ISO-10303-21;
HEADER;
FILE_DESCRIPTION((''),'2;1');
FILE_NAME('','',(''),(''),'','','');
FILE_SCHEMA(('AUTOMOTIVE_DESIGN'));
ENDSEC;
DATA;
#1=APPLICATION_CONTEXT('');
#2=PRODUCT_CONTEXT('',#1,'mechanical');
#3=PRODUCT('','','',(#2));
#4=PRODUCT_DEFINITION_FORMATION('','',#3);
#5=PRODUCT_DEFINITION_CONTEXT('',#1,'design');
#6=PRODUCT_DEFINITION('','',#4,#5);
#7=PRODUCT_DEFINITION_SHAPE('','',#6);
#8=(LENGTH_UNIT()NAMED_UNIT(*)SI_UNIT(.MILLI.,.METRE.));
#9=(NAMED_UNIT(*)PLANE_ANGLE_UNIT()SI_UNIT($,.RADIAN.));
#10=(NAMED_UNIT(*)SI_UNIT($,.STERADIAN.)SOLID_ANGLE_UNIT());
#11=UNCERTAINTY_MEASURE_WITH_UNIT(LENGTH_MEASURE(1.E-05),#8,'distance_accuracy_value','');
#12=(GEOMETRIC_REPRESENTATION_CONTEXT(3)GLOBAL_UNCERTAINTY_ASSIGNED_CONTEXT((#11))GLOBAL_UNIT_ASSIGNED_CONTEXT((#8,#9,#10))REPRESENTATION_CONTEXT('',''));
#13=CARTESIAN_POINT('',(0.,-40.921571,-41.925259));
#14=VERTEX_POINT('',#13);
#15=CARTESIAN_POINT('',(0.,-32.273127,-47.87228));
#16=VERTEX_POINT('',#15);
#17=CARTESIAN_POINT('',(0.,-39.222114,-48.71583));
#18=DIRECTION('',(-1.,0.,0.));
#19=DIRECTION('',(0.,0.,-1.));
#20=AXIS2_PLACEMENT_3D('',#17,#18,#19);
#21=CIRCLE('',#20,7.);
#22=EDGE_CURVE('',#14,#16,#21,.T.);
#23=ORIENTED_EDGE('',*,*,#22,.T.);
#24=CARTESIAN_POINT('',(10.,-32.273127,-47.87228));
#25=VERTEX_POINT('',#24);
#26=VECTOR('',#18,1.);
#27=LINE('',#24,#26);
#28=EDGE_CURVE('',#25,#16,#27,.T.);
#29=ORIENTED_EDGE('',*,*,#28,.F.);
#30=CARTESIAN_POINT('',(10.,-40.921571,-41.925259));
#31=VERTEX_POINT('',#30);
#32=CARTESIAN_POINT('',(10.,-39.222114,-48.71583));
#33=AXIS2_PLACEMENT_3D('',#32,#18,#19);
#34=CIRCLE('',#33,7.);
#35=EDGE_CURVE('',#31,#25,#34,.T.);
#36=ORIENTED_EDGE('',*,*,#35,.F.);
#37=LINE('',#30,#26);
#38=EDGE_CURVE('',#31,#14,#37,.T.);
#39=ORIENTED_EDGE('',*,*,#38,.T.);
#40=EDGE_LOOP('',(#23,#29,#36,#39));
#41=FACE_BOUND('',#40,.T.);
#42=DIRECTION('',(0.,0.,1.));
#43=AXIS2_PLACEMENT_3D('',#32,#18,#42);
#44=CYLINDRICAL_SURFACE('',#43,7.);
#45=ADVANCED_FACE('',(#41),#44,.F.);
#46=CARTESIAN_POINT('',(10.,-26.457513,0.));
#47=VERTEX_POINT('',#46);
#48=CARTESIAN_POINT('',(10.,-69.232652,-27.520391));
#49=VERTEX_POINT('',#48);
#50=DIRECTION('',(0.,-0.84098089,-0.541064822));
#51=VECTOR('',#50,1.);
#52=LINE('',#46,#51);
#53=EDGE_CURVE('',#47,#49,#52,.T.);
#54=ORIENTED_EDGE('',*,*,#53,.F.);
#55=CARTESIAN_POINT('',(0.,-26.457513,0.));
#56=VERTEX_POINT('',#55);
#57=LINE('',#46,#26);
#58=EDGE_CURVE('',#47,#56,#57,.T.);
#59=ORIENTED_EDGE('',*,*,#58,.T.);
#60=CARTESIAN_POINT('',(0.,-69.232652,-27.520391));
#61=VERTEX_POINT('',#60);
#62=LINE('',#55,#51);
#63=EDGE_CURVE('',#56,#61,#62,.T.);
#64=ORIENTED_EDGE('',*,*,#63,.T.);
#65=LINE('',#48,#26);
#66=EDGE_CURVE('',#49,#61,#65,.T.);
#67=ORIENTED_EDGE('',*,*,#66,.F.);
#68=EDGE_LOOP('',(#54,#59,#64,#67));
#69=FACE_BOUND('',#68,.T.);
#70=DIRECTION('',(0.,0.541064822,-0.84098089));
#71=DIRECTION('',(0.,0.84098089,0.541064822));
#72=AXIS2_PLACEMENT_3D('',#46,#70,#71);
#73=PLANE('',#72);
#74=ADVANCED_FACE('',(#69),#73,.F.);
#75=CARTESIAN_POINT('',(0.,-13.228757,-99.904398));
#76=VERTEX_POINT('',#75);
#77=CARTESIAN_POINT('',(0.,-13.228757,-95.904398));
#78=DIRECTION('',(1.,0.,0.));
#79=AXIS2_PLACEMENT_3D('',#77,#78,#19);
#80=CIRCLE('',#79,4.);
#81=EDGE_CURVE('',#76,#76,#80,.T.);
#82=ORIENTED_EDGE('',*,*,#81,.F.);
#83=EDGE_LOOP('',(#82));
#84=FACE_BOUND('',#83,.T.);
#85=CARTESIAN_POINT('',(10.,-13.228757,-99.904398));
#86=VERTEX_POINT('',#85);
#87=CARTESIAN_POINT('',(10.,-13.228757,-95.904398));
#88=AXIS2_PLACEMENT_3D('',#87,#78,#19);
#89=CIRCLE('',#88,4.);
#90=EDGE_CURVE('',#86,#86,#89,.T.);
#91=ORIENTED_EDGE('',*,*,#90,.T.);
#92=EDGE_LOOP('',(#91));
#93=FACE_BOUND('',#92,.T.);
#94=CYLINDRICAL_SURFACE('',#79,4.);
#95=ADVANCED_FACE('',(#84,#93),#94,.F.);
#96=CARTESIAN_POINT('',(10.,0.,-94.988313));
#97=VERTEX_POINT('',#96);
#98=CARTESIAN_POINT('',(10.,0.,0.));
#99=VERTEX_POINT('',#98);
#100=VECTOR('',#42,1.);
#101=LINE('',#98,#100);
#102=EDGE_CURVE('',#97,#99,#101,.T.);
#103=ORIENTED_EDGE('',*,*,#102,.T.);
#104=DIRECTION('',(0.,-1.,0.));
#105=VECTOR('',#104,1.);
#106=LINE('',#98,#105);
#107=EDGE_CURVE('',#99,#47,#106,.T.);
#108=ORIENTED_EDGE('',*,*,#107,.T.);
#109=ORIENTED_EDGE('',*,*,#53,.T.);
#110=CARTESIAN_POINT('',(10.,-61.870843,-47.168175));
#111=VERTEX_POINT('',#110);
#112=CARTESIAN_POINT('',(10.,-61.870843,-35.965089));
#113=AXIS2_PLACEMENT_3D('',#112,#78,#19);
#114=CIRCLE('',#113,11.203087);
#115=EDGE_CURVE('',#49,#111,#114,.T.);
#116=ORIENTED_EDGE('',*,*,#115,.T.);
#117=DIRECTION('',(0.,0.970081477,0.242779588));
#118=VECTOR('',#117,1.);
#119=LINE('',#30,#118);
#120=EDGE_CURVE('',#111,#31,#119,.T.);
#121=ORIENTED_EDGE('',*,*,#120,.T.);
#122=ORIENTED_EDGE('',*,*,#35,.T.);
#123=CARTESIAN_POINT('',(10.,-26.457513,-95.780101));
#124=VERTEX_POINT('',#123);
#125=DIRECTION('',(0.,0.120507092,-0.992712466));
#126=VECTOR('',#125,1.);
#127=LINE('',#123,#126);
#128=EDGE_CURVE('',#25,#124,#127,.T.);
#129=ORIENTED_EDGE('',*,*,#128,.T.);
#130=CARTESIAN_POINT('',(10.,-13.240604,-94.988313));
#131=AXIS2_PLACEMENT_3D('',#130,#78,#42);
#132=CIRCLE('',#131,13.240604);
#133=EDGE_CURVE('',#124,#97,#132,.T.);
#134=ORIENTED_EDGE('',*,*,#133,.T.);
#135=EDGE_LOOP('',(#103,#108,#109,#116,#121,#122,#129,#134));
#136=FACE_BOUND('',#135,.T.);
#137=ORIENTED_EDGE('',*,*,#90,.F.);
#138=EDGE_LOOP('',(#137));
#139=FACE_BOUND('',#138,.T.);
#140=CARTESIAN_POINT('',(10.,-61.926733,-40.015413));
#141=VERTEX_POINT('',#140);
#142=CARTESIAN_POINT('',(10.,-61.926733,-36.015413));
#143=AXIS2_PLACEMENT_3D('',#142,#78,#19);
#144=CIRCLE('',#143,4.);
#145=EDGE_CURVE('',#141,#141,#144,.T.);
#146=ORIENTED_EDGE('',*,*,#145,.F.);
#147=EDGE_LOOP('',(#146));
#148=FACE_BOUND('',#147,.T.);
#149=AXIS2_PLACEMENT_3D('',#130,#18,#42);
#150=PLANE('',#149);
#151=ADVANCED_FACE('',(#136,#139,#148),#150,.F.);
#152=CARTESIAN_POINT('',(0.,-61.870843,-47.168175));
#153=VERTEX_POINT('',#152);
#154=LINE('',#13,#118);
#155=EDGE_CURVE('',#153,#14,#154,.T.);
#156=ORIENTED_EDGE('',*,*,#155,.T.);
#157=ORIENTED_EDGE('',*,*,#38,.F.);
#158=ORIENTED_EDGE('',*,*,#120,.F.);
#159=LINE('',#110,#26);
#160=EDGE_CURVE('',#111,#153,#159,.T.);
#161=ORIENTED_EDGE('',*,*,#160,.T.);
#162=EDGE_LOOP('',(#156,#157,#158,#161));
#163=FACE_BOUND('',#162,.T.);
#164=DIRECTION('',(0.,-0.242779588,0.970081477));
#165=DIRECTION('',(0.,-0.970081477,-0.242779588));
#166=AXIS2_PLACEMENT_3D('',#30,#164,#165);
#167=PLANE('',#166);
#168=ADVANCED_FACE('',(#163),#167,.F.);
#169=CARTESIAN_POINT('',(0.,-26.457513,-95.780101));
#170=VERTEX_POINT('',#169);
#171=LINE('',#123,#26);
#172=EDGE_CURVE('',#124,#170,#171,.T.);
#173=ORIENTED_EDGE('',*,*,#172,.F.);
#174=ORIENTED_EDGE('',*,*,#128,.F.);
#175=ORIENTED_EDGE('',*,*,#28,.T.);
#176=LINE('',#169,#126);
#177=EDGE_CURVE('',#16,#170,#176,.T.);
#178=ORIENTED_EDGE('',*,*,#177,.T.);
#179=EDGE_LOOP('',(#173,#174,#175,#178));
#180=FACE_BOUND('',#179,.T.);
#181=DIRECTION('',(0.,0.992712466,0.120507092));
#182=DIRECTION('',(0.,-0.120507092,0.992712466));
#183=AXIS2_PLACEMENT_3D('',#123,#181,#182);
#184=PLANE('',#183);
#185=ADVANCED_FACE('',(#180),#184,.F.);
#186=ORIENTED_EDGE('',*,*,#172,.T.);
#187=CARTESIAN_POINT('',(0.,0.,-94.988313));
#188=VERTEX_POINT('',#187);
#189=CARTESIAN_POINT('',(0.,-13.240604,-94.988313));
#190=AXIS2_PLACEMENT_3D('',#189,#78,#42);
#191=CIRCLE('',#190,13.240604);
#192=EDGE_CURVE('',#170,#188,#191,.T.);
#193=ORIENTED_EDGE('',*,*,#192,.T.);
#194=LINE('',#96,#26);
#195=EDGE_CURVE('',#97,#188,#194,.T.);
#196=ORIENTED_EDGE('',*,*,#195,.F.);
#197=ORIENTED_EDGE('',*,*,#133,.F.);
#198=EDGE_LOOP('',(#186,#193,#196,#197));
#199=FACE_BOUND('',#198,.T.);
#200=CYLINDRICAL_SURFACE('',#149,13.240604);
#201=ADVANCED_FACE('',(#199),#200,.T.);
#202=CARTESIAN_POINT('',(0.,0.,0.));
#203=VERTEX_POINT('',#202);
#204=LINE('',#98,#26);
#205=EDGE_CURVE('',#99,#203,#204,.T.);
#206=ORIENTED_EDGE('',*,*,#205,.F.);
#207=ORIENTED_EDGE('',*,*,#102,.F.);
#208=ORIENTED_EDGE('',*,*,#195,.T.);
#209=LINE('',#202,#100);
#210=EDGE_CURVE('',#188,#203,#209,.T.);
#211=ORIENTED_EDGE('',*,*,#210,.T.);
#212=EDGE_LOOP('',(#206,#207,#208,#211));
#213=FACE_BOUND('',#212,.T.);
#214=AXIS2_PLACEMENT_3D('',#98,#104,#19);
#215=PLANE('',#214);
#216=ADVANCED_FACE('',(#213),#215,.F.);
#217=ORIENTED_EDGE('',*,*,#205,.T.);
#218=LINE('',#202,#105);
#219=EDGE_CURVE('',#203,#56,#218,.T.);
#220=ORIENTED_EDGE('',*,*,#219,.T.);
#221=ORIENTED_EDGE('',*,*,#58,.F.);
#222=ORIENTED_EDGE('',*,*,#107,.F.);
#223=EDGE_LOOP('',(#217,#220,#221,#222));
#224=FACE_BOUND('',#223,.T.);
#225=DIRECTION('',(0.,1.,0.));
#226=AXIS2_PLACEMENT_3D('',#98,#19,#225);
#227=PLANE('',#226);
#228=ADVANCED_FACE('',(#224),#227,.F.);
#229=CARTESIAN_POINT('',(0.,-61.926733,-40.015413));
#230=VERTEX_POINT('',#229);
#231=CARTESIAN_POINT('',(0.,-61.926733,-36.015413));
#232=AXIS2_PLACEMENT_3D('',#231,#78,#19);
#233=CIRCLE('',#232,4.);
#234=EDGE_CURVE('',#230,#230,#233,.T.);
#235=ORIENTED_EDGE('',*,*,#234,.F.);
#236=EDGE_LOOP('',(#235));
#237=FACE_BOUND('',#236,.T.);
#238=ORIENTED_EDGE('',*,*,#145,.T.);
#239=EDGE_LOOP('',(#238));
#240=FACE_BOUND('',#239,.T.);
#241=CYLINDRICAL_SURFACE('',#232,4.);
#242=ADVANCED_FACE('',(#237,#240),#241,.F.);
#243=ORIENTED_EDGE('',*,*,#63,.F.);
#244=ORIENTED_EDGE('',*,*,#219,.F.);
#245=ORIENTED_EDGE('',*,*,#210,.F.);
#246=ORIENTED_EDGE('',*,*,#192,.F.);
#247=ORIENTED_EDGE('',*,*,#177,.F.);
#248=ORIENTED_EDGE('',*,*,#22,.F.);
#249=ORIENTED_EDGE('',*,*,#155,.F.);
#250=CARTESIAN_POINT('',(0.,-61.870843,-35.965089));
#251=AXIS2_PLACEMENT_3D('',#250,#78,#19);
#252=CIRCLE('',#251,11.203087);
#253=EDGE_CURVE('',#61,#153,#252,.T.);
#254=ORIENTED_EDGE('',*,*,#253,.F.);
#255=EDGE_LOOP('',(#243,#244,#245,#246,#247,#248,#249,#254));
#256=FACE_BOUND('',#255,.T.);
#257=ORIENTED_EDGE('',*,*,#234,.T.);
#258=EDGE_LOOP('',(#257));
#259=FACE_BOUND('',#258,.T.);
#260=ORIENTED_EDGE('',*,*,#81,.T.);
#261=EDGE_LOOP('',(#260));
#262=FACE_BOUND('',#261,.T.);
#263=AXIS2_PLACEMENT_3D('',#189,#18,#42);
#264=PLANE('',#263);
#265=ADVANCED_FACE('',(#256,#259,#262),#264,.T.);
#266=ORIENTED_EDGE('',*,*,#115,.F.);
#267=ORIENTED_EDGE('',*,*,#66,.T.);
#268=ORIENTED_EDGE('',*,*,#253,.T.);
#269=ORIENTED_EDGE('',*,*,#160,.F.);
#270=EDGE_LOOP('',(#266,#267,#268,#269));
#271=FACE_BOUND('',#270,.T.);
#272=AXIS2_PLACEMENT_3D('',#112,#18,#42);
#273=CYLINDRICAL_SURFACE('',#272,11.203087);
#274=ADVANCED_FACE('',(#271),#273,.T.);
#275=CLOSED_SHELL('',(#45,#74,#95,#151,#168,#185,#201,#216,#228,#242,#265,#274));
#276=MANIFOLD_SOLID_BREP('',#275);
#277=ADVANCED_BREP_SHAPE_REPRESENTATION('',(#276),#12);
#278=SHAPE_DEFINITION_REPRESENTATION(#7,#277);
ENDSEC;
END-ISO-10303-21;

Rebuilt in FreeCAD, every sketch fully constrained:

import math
import FreeCAD as App
import Part
import Sketcher
from FreeCAD import Vector

doc = App.newDocument("Part")
body = doc.addObject("PartDesign::Body", "Body")

sketch1 = body.newObject("Sketcher::SketchObject", "Sketch")
sketch1.AttachmentSupport = (doc.getObject("YZ_Plane"), [""])
sketch1.MapMode = "FlatFace"
sketch1.addGeometry(Part.LineSegment(Vector(0, 0, 0), Vector(-26, 0, 0)), False)
sketch1.addGeometry(Part.LineSegment(Vector(-26, 0, 0), Vector(-69, -28, 0)), False)
sketch1.addGeometry(Part.ArcOfCircle(Part.Circle(Vector(-62, -36, 0), Vector(0, 0, 1), 11), math.radians(131), math.radians(270)), False)
sketch1.addGeometry(Part.LineSegment(Vector(-62, -47, 0), Vector(-41, -42, 0)), False)
sketch1.addGeometry(Part.ArcOfCircle(Part.Circle(Vector(-39, -49, 0), Vector(0, 0, 1), 7), math.radians(7), math.radians(104)), False)
sketch1.addGeometry(Part.LineSegment(Vector(-32, -48, 0), Vector(-26, -96, 0)), False)
sketch1.addGeometry(Part.ArcOfCircle(Part.Circle(Vector(-13, -95, 0), Vector(0, 0, 1), 13), math.radians(-177), math.radians(0)), False)
sketch1.addGeometry(Part.LineSegment(Vector(0, -95, 0), Vector(0, 0, 0)), False)
sketch1.addConstraint(Sketcher.Constraint("Coincident", 0, 2, 1, 1))
sketch1.addConstraint(Sketcher.Constraint("Coincident", 1, 2, 2, 1))
sketch1.addConstraint(Sketcher.Constraint("Coincident", 2, 2, 3, 1))
sketch1.addConstraint(Sketcher.Constraint("Tangent", 3, 2, 4, 2))
sketch1.addConstraint(Sketcher.Constraint("Tangent", 4, 1, 5, 1))
sketch1.addConstraint(Sketcher.Constraint("Coincident", 5, 2, 6, 1))
sketch1.addConstraint(Sketcher.Constraint("Tangent", 6, 2, 7, 1))
sketch1.addConstraint(Sketcher.Constraint("Coincident", 7, 2, 0, 1))
sketch1.addConstraint(Sketcher.Constraint("Horizontal", 0))
sketch1.addConstraint(Sketcher.Constraint("Vertical", 7))
sketch1.addConstraint(Sketcher.Constraint("Coincident", 7, 2, -1, 1))
sketch1.addConstraint(Sketcher.Constraint("Vertical", 0, 2, 5, 2))
sketch1.addConstraint(Sketcher.Constraint("Radius", 4, 7.0))
sketch1.addConstraint(Sketcher.Constraint("Radius", 2, 11.203087))
sketch1.addConstraint(Sketcher.Constraint("Radius", 6, 13.240604))
sketch1.addConstraint(Sketcher.Constraint("DistanceY", 5, 2, -1, 1, 95.780101))
sketch1.addConstraint(Sketcher.Constraint("DistanceX", 4, 3, 0, 2, 12.764601))
sketch1.addConstraint(Sketcher.Constraint("Distance", 1, 50.86339))
sketch1.addConstraint(Sketcher.Constraint("DistanceX", 0, 2, 0, 1, 26.457513))
sketch1.addConstraint(Sketcher.Constraint("DistanceY", 2, 3, -1, 1, 35.965089))
sketch1.addConstraint(Sketcher.Constraint("DistanceY", 4, 3, -1, 1, 48.71583))
sketch1.addConstraint(Sketcher.Constraint("DistanceX", 1, 2, -1, 1, 69.232652))
sketch1.addConstraint(Sketcher.Constraint("DistanceX", 3, 2, -1, 1, 40.921571))
pad1 = body.newObject("PartDesign::Pad", "Pad")
pad1.Profile = sketch1
pad1.Length = 10

sketch2 = body.newObject("Sketcher::SketchObject", "Sketch001")
sketch2.AttachmentSupport = (doc.getObject("YZ_Plane"), [""])
sketch2.MapMode = "FlatFace"
sketch2.AttachmentOffset = App.Placement(Vector(0, 0, 10), App.Rotation())
sketch2.addGeometry(Part.Circle(Vector(-13.2, -95.9, 0), Vector(0, 0, 1), 4), False)
sketch2.addGeometry(Part.Circle(Vector(-61.9, -36, 0), Vector(0, 0, 1), 4), False)
sketch2.addConstraint(Sketcher.Constraint("Equal", 0, 1))
sketch2.addConstraint(Sketcher.Constraint("Diameter", 0, 8.0))
sketch2.addConstraint(Sketcher.Constraint("DistanceX", 0, 3, -1, 1, 13.228757))
sketch2.addConstraint(Sketcher.Constraint("DistanceY", 0, 3, -1, 1, 95.904398))
sketch2.addConstraint(Sketcher.Constraint("DistanceX", 1, 3, -1, 1, 61.926733))
sketch2.addConstraint(Sketcher.Constraint("DistanceY", 1, 3, -1, 1, 36.015413))
pocket1 = body.newObject("PartDesign::Pocket", "Pocket")
pocket1.Profile = sketch2
pocket1.Type = "ThroughAll"

doc.recompute()
